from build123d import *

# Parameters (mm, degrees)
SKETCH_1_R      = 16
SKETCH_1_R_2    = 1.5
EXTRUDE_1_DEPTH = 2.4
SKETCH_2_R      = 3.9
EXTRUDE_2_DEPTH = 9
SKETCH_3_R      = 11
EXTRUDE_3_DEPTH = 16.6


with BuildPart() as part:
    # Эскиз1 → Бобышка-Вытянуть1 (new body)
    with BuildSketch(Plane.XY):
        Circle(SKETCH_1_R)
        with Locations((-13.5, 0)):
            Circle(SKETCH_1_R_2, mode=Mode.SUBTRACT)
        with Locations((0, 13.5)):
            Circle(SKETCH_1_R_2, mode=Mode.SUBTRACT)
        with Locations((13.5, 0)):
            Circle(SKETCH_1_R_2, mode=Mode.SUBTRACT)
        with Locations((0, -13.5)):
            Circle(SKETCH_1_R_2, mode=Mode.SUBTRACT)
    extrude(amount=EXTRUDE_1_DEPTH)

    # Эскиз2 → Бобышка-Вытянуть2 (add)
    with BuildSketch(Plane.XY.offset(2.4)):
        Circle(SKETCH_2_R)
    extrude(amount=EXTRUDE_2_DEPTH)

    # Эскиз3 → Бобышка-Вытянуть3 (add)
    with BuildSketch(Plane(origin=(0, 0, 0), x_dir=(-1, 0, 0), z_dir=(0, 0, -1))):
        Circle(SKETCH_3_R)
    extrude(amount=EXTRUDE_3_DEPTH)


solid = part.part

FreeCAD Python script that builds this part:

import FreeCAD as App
import Part
import Sketcher

V = App.Vector

doc = App.newDocument("Part")
body = doc.addObject("PartDesign::Body", "Body")

# Sketch on XY plane
sketch1 = body.newObject("Sketcher::SketchObject", "Sketch")
sketch1.AttachmentSupport = (doc.getObject("XY_Plane"), [""])
sketch1.MapMode = "FlatFace"
sketch1.addGeometry([
    Part.Circle(V(0, 0, 0), V(0, 0, 1), 16),  # 0
    Part.Circle(V(0, -13.5, 0), V(0, 0, 1), 1.5),  # 1
    Part.Circle(V(-13.5, 0, 0), V(0, 0, 1), 1.5),  # 2
    Part.Circle(V(13.5, 0, 0), V(0, 0, 1), 1.5),  # 3
    Part.Circle(V(0, 13.5, 0), V(0, 0, 1), 1.5),  # 4
], False)
sketch1.addConstraint([
    Sketcher.Constraint("Coincident", 0, 3, -1, 1),
    Sketcher.Constraint("Equal", 1, 2),
    Sketcher.Constraint("Equal", 2, 3),
    Sketcher.Constraint("Equal", 3, 4),
    Sketcher.Constraint("Symmetric", 2, 3, 3, 3, -1, 1),
    Sketcher.Constraint("Symmetric", 1, 3, 4, 3, -1, 1),
    Sketcher.Constraint("PointOnObject", 1, 3, -2),
    Sketcher.Constraint("PointOnObject", 2, 3, -1),
    Sketcher.Constraint("Diameter", 0, 32.0),
    Sketcher.Constraint("Diameter", 1, 3.0),
    Sketcher.Constraint("DistanceX", 2, 3, 3, 3, 27.0),
    Sketcher.Constraint("DistanceY", 1, 3, 4, 3, 27.0),
])
pad1 = body.newObject("PartDesign::Pad", "Pad")
pad1.Profile = sketch1
pad1.Length = 2.4

# Sketch on XY plane
sketch2 = body.newObject("Sketcher::SketchObject", "Sketch001")
sketch2.AttachmentSupport = (doc.getObject("XY_Plane"), [""])
sketch2.MapMode = "FlatFace"
sketch2.AttachmentOffset = App.Placement(V(0, 0, 2.4), App.Rotation())
sketch2.addGeometry(Part.Circle(V(0, 0, 0), V(0, 0, 1), 3.9), False)
sketch2.addConstraint([
    Sketcher.Constraint("Coincident", 0, 3, -1, 1),
    Sketcher.Constraint("Diameter", 0, 7.8),
])
pad2 = body.newObject("PartDesign::Pad", "Pad001")
pad2.Profile = sketch2
pad2.Length = 9

# Sketch on XY plane
sketch3 = body.newObject("Sketcher::SketchObject", "Sketch002")
sketch3.AttachmentSupport = (doc.getObject("XY_Plane"), [""])
sketch3.MapMode = "FlatFace"
sketch3.addGeometry(Part.Circle(V(0, 0, 0), V(0, 0, 1), 11), False)
sketch3.addConstraint([
    Sketcher.Constraint("Coincident", 0, 3, -1, 1),
    Sketcher.Constraint("Diameter", 0, 22.0),
])
pad3 = body.newObject("PartDesign::Pad", "Pad002")
pad3.Profile = sketch3
pad3.Length = 16.6
pad3.Reversed = True

doc.recompute()
